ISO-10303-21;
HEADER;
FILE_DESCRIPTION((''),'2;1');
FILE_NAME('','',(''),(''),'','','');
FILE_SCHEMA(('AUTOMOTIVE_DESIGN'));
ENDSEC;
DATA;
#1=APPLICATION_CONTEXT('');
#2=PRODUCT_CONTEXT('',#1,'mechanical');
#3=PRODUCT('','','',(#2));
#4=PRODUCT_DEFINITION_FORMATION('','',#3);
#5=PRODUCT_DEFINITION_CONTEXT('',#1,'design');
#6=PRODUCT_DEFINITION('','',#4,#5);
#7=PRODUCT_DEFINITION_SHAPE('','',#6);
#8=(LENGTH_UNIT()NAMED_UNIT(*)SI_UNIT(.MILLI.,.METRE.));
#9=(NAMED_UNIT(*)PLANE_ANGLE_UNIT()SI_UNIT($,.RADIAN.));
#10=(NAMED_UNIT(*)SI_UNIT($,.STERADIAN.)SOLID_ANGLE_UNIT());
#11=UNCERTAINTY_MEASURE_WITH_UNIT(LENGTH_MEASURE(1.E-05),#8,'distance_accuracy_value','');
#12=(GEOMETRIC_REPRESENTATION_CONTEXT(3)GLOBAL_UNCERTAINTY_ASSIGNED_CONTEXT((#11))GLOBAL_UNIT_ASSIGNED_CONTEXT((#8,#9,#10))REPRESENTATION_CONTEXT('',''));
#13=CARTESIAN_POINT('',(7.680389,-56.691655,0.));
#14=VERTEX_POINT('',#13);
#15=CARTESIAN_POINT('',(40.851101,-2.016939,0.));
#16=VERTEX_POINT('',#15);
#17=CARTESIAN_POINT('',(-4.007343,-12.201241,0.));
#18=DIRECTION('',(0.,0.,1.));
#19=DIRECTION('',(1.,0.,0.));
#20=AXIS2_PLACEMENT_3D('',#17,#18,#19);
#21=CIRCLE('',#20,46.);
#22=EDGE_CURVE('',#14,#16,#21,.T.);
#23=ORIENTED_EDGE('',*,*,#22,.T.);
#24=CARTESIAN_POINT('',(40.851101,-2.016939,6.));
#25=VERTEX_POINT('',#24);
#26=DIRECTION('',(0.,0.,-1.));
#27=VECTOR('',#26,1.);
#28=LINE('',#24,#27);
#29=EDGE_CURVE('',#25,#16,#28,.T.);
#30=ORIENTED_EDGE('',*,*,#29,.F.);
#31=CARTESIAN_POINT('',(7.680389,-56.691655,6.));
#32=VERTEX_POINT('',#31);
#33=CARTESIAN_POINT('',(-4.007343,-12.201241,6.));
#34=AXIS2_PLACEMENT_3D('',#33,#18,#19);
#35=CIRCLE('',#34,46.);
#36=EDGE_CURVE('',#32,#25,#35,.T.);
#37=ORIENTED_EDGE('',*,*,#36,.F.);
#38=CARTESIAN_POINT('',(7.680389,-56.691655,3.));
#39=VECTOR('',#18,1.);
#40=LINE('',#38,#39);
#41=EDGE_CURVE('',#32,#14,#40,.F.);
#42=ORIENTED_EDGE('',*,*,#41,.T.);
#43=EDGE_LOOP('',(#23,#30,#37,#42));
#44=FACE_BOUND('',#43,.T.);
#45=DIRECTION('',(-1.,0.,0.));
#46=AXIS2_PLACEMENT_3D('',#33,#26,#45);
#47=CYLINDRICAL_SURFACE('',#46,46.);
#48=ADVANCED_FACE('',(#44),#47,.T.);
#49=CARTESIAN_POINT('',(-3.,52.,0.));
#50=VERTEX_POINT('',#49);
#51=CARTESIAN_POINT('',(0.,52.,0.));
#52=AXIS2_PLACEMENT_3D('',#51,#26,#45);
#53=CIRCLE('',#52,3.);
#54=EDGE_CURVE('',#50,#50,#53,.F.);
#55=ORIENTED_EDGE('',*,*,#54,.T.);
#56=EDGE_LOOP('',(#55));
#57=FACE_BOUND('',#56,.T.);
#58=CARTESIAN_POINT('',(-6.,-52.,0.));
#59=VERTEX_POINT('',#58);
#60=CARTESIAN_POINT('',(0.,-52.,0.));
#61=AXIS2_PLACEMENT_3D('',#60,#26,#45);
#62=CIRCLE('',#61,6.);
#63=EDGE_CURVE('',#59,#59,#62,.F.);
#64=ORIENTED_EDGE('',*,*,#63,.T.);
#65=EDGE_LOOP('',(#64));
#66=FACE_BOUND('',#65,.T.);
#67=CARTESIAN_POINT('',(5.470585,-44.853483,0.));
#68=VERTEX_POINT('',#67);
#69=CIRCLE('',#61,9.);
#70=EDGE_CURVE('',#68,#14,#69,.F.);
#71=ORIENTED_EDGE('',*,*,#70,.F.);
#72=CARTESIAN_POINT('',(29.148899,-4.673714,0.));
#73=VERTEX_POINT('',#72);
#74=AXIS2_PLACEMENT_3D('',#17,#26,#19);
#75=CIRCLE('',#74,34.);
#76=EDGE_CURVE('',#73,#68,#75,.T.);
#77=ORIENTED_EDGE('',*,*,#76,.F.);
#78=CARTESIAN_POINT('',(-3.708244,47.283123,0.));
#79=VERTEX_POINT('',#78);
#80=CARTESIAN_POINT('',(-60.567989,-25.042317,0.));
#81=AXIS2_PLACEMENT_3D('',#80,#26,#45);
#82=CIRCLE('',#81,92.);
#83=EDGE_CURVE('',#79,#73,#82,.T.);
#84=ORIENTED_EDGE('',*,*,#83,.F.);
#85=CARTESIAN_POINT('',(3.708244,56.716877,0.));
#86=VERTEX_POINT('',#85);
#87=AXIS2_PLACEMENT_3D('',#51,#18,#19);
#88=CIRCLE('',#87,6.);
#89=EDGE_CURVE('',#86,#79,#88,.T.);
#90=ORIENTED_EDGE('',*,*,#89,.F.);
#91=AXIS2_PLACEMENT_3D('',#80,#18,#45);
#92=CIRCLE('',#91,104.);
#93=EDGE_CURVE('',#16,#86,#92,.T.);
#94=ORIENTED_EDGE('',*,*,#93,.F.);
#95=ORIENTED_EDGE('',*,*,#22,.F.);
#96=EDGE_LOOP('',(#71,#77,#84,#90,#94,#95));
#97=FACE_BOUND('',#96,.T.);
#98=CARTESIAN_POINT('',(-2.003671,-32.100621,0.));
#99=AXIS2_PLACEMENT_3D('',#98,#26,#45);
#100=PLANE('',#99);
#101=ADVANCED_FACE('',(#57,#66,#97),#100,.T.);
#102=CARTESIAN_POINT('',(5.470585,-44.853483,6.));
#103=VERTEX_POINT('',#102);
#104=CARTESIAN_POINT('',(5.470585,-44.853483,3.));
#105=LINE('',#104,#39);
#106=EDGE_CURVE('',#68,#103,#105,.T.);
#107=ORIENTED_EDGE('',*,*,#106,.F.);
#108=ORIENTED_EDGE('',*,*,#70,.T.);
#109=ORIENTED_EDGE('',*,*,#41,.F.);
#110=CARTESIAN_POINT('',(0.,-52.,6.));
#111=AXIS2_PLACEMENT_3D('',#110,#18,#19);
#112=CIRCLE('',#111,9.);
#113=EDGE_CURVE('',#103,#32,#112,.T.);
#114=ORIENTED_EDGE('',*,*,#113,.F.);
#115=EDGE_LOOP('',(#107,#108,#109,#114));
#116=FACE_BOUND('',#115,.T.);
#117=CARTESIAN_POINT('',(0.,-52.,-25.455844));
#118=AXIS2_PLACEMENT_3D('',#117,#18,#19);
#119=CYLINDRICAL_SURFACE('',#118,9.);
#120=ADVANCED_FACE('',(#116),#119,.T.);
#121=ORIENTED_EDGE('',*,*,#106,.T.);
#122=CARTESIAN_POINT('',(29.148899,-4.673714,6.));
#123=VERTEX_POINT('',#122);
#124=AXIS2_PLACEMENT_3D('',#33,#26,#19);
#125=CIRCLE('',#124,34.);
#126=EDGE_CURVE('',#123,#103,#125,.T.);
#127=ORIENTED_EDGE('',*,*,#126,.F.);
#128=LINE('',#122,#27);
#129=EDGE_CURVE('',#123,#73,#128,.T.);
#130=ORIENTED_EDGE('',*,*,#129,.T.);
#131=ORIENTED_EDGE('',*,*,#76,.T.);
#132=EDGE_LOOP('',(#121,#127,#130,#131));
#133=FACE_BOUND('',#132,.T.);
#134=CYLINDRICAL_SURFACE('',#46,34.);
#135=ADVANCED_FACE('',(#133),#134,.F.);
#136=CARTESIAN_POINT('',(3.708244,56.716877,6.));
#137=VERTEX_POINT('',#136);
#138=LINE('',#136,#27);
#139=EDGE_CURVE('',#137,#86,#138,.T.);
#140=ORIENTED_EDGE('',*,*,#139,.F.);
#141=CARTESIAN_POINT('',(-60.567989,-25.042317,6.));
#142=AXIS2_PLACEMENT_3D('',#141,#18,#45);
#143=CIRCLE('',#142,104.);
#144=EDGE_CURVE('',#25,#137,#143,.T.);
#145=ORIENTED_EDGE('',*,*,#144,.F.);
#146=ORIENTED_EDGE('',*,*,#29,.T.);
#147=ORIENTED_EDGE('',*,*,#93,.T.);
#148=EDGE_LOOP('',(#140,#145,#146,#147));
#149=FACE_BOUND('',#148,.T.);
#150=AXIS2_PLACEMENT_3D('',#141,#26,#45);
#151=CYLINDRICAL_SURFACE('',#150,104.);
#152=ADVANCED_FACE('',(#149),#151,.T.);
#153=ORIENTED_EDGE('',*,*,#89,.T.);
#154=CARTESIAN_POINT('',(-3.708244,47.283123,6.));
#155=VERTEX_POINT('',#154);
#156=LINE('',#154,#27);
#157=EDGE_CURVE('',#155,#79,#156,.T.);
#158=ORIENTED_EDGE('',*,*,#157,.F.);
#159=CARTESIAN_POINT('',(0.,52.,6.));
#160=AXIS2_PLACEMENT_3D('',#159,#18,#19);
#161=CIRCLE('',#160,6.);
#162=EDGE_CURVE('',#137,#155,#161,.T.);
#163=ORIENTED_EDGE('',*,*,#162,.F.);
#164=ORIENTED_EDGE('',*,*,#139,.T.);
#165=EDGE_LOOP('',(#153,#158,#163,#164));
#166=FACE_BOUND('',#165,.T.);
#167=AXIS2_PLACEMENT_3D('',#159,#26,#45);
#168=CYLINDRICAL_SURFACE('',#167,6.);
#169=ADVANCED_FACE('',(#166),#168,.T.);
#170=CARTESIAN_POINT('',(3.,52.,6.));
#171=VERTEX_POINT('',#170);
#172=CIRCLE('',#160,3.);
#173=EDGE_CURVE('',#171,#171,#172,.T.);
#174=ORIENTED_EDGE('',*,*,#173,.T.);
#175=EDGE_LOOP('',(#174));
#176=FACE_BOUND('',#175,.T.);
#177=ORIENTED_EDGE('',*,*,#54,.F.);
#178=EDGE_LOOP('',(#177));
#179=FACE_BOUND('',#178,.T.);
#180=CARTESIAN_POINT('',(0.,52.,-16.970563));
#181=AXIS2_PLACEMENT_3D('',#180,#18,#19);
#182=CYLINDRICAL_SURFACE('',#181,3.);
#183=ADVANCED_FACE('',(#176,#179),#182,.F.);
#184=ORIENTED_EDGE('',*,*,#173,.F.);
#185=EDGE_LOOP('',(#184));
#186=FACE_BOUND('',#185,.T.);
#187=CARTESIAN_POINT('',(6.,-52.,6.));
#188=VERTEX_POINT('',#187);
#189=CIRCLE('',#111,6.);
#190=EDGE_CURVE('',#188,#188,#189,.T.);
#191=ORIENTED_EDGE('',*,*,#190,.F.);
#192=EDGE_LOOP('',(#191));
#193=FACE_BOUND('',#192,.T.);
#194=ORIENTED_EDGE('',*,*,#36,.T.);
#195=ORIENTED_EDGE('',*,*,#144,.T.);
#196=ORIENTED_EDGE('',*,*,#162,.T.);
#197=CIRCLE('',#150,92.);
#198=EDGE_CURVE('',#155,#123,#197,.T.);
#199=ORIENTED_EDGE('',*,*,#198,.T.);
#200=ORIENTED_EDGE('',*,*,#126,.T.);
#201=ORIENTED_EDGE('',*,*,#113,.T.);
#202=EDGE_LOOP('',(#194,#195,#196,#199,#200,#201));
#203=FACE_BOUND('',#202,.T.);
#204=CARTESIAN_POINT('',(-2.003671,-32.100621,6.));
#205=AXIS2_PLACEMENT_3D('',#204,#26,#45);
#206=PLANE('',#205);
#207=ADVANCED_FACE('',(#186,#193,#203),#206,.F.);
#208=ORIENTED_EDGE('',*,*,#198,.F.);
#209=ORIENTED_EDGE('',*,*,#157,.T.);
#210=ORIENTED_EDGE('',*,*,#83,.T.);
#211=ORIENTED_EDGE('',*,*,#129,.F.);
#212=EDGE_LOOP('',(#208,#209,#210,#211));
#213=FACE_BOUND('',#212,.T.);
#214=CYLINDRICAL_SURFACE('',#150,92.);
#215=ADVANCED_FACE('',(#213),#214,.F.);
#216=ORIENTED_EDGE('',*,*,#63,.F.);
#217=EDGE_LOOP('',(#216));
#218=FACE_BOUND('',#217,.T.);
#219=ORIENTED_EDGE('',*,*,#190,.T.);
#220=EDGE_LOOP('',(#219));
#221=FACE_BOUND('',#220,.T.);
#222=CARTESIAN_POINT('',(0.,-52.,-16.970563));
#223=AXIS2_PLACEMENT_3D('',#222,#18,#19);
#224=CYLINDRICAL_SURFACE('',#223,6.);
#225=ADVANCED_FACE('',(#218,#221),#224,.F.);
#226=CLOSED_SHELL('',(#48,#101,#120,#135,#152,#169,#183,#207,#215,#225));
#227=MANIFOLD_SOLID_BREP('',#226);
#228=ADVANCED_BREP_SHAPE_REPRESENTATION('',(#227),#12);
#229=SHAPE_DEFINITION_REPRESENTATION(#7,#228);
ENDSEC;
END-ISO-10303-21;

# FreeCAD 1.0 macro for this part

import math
import FreeCAD as App
import Part
import Sketcher

V = App.Vector

doc = App.newDocument("Part")
params = doc.addObject("Spreadsheet::Sheet", "Params")
for row, (alias, value) in enumerate([
    ("sketch1_radius", "46 mm"),
    ("sketch1_radius2", "104 mm"),
    ("sketch1_radius3", "6 mm"),
    ("pad1_length", "6 mm"),
    ("sketch2_diameter", "18 mm"),
    ("pad2_length", "6 mm"),
    ("sketch3_diameter", "12 mm"),
    ("sketch3_diameter2", "6 mm"),
    ("pocket1_length", "6 mm"),
], start=1):
    params.set(f"A{row}", alias)
    params.set(f"B{row}", "=" + value)
    params.setAlias(f"B{row}", alias)

body = doc.addObject("PartDesign::Body", "Body")

# Sketch on XY plane
sketch1 = body.newObject("Sketcher::SketchObject", "Sketch")
sketch1.AttachmentSupport = (doc.getObject("XY_Plane"), [""])
sketch1.MapMode = "FlatFace"
sketch1.addGeometry([
    Part.ArcOfCircle(Part.Circle(V(-4, -12, 0), V(0, 0, 1), 46), math.radians(-84), math.radians(13)),  # 0
    Part.ArcOfCircle(Part.Circle(V(-61, -25, 0), V(0, 0, 1), 104), math.radians(13), math.radians(52)),  # 1
    Part.ArcOfCircle(Part.Circle(V(0, 52, 0), V(0, 0, 1), 6), math.radians(52), math.radians(232)),  # 2
    Part.ArcOfCircle(Part.Circle(V(-61, -25, 0), V(0, 0, 1), 92), math.radians(13), math.radians(52)),  # 3
    Part.ArcOfCircle(Part.Circle(V(-4, -12, 0), V(0, 0, 1), 34), math.radians(-84), math.radians(13)),  # 4
    Part.ArcOfCircle(Part.Circle(V(0, -52, 0), V(0, 0, 1), 6), math.radians(96), math.radians(276)),  # 5
], False)
sketch1.addConstraint([
    Sketcher.Constraint("Tangent", 0, 2, 1, 1),
    Sketcher.Constraint("Tangent", 1, 2, 2, 1),
    Sketcher.Constraint("Tangent", 2, 2, 3, 2),
    Sketcher.Constraint("Tangent", 3, 1, 4, 2),
    Sketcher.Constraint("Tangent", 4, 1, 5, 1),
    Sketcher.Constraint("Tangent", 5, 2, 0, 1),
    Sketcher.Constraint("Coincident", 3, 3, 1, 3),
    Sketcher.Constraint("Coincident", 4, 3, 0, 3),
    Sketcher.Constraint("Symmetric", 2, 3, 5, 3, -1, 1),
    Sketcher.Constraint("PointOnObject", 2, 3, -2),
    Sketcher.Constraint("Radius", 0, 46.0),
    Sketcher.Constraint("Radius", 1, 104.0),
    Sketcher.Constraint("Radius", 2, 6.0),
    Sketcher.Constraint("DistanceY", -1, 1, 2, 3, 52.0),
    Sketcher.Constraint("DistanceX", 4, 1, 3, 1, 29.75),
])
sketch1.setExpression("Constraints[10]", "Params.sketch1_radius")
sketch1.setExpression("Constraints[11]", "Params.sketch1_radius2")
sketch1.setExpression("Constraints[12]", "Params.sketch1_radius3")
pad1 = body.newObject("PartDesign::Pad", "Pad")
pad1.Profile = sketch1
pad1.setExpression("Length", "Params.pad1_length")

# Sketch on XY plane
sketch2 = body.newObject("Sketcher::SketchObject", "Sketch001")
sketch2.AttachmentSupport = (doc.getObject("XY_Plane"), [""])
sketch2.MapMode = "FlatFace"
sketch2.AttachmentOffset = App.Placement(V(0, 0, 6), App.Rotation())
sketch2.addGeometry(Part.Circle(V(0, -52, 0), V(0, 0, 1), 9), False)
sketch2.addConstraint([
    Sketcher.Constraint("PointOnObject", 0, 3, -2),
    Sketcher.Constraint("Diameter", 0, 18.0),
    Sketcher.Constraint("DistanceY", 0, 3, -1, 1, 52.0),
])
sketch2.setExpression("Constraints[1]", "Params.sketch2_diameter")
pad2 = body.newObject("PartDesign::Pad", "Pad001")
pad2.Profile = sketch2
pad2.setExpression("Length", "Params.pad2_length")
pad2.Reversed = True

# Sketch on XY plane
sketch3 = body.newObject("Sketcher::SketchObject", "Sketch002")
sketch3.AttachmentSupport = (doc.getObject("XY_Plane"), [""])
sketch3.MapMode = "FlatFace"
sketch3.AttachmentOffset = App.Placement(V(0, 0, 6), App.Rotation())
sketch3.addGeometry([
    Part.Circle(V(0, -52, 0), V(0, 0, 1), 6),
    Part.Circle(V(0, 52, 0), V(0, 0, 1), 3),
], False)
sketch3.addConstraint([
    Sketcher.Constraint("Symmetric", 0, 3, 1, 3, -1, 1),
    Sketcher.Constraint("PointOnObject", 0, 3, -2),
    Sketcher.Constraint("Diameter", 0, 12.0),
    Sketcher.Constraint("Diameter", 1, 6.0),
    Sketcher.Constraint("DistanceY", 0, 3, -1, 1, 52.0),
])
sketch3.setExpression("Constraints[2]", "Params.sketch3_diameter")
sketch3.setExpression("Constraints[3]", "Params.sketch3_diameter2")
pocket1 = body.newObject("PartDesign::Pocket", "Pocket")
pocket1.Profile = sketch3
pocket1.setExpression("Length", "Params.pocket1_length")

doc.recompute()
